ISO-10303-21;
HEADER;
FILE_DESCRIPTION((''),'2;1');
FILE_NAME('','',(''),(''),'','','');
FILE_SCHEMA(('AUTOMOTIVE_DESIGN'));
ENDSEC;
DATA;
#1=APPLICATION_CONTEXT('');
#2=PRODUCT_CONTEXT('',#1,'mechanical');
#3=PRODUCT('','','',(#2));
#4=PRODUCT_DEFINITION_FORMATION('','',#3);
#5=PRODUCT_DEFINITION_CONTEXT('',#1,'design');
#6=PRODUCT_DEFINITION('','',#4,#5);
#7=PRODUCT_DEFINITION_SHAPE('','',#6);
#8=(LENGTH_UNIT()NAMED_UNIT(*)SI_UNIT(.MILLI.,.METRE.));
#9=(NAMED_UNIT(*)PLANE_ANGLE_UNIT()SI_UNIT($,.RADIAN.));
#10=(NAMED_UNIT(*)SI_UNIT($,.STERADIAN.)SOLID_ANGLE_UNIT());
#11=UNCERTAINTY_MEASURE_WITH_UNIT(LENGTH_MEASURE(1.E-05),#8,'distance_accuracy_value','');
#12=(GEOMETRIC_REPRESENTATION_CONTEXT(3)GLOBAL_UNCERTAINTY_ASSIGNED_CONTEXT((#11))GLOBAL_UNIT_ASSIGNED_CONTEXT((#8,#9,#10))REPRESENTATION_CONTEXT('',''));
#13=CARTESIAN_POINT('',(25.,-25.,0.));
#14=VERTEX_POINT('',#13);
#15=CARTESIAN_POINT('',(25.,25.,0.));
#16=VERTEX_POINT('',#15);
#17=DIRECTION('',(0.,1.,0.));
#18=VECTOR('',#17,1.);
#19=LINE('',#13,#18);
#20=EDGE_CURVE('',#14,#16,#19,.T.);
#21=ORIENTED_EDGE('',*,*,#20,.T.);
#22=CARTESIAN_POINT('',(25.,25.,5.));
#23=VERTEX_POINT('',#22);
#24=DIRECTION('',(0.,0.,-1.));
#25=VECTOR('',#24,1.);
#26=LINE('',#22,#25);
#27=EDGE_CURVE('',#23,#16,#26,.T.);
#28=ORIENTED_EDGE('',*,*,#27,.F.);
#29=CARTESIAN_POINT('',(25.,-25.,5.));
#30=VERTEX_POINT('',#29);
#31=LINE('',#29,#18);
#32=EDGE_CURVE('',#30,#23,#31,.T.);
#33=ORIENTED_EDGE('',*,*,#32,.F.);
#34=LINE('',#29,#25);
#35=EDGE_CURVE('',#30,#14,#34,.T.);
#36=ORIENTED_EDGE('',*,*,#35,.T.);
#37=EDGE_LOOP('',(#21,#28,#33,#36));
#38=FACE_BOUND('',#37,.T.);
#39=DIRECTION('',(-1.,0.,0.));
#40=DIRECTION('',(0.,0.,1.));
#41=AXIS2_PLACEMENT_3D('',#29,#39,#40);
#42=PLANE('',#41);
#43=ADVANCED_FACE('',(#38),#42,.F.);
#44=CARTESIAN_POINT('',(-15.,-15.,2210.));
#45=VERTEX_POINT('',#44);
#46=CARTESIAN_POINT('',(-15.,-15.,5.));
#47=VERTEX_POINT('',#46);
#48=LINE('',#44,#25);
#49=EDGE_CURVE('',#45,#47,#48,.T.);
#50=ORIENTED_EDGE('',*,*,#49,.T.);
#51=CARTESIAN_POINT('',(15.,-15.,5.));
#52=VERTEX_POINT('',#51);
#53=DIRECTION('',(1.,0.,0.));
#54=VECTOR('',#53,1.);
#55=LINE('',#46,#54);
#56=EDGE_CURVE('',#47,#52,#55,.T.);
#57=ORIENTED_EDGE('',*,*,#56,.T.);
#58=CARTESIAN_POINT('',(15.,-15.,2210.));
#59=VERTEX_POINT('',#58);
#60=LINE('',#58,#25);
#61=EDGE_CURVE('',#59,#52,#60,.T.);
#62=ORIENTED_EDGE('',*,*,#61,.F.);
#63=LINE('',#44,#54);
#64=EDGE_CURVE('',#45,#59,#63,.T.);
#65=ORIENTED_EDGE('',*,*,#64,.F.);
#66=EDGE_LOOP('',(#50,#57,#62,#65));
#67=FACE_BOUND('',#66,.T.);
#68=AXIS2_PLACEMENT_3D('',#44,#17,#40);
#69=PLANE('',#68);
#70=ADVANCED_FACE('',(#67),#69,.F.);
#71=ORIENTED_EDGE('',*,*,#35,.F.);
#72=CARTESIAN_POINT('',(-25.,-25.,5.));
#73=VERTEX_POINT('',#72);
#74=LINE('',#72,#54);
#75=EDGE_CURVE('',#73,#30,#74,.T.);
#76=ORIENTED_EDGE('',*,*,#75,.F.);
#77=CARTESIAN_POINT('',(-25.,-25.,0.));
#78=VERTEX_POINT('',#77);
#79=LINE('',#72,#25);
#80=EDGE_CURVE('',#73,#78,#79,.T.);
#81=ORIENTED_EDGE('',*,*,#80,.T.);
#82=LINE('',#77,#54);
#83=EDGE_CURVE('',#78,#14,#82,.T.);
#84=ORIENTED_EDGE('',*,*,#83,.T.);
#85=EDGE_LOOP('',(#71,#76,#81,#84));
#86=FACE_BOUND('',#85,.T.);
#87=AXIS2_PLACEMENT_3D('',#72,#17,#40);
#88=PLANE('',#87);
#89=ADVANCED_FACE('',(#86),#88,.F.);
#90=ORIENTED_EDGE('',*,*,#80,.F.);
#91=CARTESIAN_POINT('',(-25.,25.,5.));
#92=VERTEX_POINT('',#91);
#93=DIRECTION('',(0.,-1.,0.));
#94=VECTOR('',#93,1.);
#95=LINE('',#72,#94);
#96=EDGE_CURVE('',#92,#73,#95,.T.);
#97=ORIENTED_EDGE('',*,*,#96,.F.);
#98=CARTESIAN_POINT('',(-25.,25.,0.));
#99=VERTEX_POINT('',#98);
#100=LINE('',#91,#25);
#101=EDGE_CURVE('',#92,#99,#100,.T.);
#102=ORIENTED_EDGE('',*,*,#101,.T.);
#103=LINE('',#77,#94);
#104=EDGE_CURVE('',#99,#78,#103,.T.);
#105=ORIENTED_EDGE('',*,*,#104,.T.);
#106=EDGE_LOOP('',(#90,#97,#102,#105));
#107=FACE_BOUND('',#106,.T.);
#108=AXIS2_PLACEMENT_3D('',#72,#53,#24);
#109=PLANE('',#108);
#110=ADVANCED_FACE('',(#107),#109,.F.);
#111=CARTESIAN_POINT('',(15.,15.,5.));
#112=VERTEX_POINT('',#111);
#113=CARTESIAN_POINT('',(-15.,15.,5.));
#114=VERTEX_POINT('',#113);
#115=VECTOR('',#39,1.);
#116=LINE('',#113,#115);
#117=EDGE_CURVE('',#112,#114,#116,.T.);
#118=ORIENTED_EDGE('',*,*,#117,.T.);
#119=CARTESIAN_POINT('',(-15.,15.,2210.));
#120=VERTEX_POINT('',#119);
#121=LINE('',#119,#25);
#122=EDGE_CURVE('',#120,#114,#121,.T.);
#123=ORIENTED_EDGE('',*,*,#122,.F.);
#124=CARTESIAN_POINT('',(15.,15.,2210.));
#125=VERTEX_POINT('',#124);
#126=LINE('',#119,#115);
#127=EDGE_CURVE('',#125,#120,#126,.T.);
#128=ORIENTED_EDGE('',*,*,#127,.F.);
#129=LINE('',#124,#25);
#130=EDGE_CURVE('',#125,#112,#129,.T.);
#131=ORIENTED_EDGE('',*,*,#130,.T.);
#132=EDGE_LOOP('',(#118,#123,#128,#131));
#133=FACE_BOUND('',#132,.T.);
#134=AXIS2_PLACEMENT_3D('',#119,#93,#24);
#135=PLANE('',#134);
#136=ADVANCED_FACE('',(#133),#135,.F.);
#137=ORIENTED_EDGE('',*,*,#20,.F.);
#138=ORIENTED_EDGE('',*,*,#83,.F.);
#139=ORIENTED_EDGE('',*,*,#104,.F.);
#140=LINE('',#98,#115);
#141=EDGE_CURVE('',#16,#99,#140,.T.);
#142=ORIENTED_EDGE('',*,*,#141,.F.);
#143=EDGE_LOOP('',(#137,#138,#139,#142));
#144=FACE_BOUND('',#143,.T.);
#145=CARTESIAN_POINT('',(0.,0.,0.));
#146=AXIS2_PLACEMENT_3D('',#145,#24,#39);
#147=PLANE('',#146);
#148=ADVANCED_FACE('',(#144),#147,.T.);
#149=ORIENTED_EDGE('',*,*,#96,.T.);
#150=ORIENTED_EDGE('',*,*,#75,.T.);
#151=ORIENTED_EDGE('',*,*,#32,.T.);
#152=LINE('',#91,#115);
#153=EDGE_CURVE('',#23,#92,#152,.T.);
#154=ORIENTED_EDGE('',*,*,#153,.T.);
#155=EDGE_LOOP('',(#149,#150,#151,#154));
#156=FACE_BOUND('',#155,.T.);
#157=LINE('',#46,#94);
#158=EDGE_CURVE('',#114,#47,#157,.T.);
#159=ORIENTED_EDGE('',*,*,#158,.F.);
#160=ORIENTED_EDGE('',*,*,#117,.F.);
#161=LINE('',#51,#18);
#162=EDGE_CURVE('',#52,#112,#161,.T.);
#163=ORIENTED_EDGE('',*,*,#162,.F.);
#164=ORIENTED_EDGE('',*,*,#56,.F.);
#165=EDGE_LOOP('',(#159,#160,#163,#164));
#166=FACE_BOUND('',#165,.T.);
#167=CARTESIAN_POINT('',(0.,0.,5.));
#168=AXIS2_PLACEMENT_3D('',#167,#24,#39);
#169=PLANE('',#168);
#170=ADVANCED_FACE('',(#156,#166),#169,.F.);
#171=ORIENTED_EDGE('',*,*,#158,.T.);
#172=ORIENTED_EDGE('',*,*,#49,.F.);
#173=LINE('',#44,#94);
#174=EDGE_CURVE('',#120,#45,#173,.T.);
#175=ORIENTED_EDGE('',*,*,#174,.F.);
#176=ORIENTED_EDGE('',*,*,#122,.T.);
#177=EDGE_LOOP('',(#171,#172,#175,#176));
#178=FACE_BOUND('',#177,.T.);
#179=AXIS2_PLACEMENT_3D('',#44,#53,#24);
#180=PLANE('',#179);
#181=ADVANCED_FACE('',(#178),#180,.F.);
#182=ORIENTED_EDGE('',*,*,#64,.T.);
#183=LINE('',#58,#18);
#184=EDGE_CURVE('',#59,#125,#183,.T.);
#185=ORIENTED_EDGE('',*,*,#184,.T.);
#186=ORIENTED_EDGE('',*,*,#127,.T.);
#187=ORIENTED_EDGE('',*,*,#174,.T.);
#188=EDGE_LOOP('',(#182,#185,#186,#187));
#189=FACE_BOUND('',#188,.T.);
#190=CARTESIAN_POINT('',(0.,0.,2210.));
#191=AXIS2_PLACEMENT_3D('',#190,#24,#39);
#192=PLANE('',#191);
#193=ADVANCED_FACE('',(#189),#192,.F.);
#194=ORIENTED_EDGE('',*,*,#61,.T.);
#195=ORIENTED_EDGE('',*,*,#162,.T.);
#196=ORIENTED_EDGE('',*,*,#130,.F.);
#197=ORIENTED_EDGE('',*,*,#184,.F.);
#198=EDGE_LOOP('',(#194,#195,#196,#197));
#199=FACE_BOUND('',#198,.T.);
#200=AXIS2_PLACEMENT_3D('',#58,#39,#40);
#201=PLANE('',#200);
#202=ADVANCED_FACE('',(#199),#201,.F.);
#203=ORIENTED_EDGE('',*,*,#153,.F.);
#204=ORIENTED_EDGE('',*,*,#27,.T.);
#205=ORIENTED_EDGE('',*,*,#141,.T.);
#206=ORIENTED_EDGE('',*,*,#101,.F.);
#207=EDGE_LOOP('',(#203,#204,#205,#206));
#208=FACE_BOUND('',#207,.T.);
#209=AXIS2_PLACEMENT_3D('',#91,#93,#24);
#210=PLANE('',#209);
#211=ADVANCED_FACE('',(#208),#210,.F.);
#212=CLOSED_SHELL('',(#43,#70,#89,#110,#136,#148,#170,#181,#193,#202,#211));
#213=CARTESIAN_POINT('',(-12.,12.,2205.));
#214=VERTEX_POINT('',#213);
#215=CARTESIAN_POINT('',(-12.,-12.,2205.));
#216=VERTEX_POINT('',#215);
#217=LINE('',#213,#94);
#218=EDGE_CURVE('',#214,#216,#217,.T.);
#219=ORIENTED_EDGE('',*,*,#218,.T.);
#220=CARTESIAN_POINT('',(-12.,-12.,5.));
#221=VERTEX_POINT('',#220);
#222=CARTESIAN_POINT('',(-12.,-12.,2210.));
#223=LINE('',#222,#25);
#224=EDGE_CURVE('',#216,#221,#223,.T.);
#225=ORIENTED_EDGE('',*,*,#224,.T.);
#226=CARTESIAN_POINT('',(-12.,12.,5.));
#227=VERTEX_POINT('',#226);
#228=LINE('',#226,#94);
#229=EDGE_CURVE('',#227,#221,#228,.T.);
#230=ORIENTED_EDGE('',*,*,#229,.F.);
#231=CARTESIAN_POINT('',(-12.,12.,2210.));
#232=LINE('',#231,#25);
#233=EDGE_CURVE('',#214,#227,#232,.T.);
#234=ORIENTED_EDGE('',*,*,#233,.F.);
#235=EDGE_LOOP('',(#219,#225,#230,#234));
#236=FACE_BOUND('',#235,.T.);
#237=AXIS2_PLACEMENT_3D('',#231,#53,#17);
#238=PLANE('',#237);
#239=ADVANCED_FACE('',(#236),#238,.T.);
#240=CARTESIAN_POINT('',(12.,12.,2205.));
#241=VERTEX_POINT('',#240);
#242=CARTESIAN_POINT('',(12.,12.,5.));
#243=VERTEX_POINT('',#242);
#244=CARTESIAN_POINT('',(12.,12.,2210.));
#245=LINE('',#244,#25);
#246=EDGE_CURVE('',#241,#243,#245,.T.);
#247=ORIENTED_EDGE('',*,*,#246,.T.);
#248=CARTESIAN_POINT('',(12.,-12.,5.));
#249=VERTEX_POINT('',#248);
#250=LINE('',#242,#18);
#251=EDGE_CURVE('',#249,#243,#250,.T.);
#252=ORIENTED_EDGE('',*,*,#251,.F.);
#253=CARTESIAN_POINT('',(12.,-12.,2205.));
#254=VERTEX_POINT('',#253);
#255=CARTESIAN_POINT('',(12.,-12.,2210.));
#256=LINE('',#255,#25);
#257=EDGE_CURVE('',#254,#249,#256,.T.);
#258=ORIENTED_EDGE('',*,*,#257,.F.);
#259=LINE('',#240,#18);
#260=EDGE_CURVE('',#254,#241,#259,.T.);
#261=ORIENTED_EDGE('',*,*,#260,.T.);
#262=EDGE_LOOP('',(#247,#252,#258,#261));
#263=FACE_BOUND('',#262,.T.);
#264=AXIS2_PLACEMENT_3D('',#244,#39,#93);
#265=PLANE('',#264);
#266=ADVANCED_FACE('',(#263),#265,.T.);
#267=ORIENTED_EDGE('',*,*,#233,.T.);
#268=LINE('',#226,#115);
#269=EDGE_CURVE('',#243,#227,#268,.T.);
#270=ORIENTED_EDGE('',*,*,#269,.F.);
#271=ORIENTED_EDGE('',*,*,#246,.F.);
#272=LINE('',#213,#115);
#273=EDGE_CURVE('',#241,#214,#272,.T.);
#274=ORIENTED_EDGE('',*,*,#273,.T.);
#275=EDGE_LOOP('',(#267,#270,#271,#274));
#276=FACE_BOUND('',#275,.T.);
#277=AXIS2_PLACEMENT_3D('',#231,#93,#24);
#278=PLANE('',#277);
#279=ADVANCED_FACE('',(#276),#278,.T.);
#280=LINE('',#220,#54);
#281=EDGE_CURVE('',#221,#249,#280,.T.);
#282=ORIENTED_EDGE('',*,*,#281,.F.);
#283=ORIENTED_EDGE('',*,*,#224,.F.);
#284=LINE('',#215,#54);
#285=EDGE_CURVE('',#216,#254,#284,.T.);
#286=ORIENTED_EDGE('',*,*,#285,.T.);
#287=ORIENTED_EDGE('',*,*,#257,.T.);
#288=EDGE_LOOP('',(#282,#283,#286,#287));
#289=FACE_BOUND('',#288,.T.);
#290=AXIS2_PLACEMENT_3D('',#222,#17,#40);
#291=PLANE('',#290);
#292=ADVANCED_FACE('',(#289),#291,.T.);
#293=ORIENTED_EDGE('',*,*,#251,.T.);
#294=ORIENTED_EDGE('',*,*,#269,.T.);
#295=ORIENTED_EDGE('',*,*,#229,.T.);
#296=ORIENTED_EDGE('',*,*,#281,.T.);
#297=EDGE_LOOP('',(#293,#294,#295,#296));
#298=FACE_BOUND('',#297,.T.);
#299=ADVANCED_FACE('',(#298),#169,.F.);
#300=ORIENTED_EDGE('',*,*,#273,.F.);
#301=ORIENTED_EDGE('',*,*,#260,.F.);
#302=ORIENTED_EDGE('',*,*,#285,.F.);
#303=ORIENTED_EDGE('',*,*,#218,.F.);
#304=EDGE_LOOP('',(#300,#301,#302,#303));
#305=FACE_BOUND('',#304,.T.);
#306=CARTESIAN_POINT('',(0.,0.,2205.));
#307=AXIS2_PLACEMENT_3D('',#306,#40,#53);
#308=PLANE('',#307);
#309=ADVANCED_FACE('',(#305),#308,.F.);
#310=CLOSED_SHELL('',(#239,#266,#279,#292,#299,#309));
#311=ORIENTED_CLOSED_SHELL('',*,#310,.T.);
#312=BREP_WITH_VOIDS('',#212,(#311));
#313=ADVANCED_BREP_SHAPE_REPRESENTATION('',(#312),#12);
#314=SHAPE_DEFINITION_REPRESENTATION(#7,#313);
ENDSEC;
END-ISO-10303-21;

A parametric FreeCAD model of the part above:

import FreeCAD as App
import Part
import Sketcher

V = App.Vector


def add_polygon(sketch, points):
    """Adds a closed chain of lines whose ends are joined by coincident constraints."""
    first, n = sketch.GeometryCount, len(points)
    for a, b in zip(points, points[1:] + points[:1]):
        sketch.addGeometry(Part.LineSegment(App.Vector(*a, 0), App.Vector(*b, 0)), False)
    for i in range(n):
        sketch.addConstraint(Sketcher.Constraint("Coincident", first + i, 2, first + (i + 1) % n, 1))

doc = App.newDocument("Part")
body = doc.addObject("PartDesign::Body", "Body")

# Sketch on XY plane
sketch1 = body.newObject("Sketcher::SketchObject", "Sketch")
sketch1.AttachmentSupport = (doc.getObject("XY_Plane"), [""])
sketch1.MapMode = "FlatFace"
add_polygon(sketch1, [(-25, 25), (-25, -25), (25, -25), (25, 25)])  # lines 0-3
sketch1.addConstraint([
    Sketcher.Constraint("Vertical", 0),
    Sketcher.Constraint("Horizontal", 1),
    Sketcher.Constraint("Vertical", 2),
    Sketcher.Constraint("Horizontal", 3),
    Sketcher.Constraint("Symmetric", 0, 2, 2, 2, -1, 1),
    Sketcher.Constraint("Equal", 3, 0),
    Sketcher.Constraint("DistanceX", 1, 1, 1, 2, 50.0),
])
pad1 = body.newObject("PartDesign::Pad", "Pad")
pad1.Profile = sketch1
pad1.Length = 5

# Sketch on XY plane
sketch2 = body.newObject("Sketcher::SketchObject", "Sketch001")
sketch2.AttachmentSupport = (doc.getObject("XY_Plane"), [""])
sketch2.MapMode = "FlatFace"
sketch2.AttachmentOffset = App.Placement(V(0, 0, 5), App.Rotation())
add_polygon(sketch2, [(-15, 15), (-15, -15), (15, -15), (15, 15)])  # lines 0-3
add_polygon(sketch2, [(12, -12), (-12, -12), (-12, 12), (12, 12)])  # lines 4-7
sketch2.addConstraint([
    Sketcher.Constraint("Vertical", 0),
    Sketcher.Constraint("Horizontal", 1),
    Sketcher.Constraint("Vertical", 2),
    Sketcher.Constraint("Horizontal", 3),
    Sketcher.Constraint("Horizontal", 4),
    Sketcher.Constraint("Vertical", 5),
    Sketcher.Constraint("Horizontal", 6),
    Sketcher.Constraint("Vertical", 7),
    Sketcher.Constraint("Symmetric", 0, 2, 2, 2, -1, 1),
    Sketcher.Constraint("Symmetric", 4, 2, 6, 2, -1, 1),
    Sketcher.Constraint("Equal", 3, 0),
    Sketcher.Constraint("Equal", 6, 5),
    Sketcher.Constraint("DistanceX", 1, 1, 1, 2, 30.0),
    Sketcher.Constraint("DistanceX", 4, 2, 4, 1, 24.0),
])
pad2 = body.newObject("PartDesign::Pad", "Pad001")
pad2.Profile = sketch2
pad2.Length = 2205

# Sketch on XY plane
sketch3 = body.newObject("Sketcher::SketchObject", "Sketch002")
sketch3.AttachmentSupport = (doc.getObject("XY_Plane"), [""])
sketch3.MapMode = "FlatFace"
sketch3.AttachmentOffset = App.Placement(V(0, 0, 2210), App.Rotation())
add_polygon(sketch3, [(-12, 12), (-12, -12), (12, -12), (12, 12)])  # lines 0-3
sketch3.addConstraint([
    Sketcher.Constraint("Vertical", 0),
    Sketcher.Constraint("Horizontal", 1),
    Sketcher.Constraint("Vertical", 2),
    Sketcher.Constraint("Horizontal", 3),
    Sketcher.Constraint("Symmetric", 0, 2, 2, 2, -1, 1),
    Sketcher.Constraint("Equal", 3, 0),
    Sketcher.Constraint("DistanceX", 1, 1, 1, 2, 24.0),
])
pad3 = body.newObject("PartDesign::Pad", "Pad002")
pad3.Profile = sketch3
pad3.Length = 5
pad3.Reversed = True

doc.recompute()
